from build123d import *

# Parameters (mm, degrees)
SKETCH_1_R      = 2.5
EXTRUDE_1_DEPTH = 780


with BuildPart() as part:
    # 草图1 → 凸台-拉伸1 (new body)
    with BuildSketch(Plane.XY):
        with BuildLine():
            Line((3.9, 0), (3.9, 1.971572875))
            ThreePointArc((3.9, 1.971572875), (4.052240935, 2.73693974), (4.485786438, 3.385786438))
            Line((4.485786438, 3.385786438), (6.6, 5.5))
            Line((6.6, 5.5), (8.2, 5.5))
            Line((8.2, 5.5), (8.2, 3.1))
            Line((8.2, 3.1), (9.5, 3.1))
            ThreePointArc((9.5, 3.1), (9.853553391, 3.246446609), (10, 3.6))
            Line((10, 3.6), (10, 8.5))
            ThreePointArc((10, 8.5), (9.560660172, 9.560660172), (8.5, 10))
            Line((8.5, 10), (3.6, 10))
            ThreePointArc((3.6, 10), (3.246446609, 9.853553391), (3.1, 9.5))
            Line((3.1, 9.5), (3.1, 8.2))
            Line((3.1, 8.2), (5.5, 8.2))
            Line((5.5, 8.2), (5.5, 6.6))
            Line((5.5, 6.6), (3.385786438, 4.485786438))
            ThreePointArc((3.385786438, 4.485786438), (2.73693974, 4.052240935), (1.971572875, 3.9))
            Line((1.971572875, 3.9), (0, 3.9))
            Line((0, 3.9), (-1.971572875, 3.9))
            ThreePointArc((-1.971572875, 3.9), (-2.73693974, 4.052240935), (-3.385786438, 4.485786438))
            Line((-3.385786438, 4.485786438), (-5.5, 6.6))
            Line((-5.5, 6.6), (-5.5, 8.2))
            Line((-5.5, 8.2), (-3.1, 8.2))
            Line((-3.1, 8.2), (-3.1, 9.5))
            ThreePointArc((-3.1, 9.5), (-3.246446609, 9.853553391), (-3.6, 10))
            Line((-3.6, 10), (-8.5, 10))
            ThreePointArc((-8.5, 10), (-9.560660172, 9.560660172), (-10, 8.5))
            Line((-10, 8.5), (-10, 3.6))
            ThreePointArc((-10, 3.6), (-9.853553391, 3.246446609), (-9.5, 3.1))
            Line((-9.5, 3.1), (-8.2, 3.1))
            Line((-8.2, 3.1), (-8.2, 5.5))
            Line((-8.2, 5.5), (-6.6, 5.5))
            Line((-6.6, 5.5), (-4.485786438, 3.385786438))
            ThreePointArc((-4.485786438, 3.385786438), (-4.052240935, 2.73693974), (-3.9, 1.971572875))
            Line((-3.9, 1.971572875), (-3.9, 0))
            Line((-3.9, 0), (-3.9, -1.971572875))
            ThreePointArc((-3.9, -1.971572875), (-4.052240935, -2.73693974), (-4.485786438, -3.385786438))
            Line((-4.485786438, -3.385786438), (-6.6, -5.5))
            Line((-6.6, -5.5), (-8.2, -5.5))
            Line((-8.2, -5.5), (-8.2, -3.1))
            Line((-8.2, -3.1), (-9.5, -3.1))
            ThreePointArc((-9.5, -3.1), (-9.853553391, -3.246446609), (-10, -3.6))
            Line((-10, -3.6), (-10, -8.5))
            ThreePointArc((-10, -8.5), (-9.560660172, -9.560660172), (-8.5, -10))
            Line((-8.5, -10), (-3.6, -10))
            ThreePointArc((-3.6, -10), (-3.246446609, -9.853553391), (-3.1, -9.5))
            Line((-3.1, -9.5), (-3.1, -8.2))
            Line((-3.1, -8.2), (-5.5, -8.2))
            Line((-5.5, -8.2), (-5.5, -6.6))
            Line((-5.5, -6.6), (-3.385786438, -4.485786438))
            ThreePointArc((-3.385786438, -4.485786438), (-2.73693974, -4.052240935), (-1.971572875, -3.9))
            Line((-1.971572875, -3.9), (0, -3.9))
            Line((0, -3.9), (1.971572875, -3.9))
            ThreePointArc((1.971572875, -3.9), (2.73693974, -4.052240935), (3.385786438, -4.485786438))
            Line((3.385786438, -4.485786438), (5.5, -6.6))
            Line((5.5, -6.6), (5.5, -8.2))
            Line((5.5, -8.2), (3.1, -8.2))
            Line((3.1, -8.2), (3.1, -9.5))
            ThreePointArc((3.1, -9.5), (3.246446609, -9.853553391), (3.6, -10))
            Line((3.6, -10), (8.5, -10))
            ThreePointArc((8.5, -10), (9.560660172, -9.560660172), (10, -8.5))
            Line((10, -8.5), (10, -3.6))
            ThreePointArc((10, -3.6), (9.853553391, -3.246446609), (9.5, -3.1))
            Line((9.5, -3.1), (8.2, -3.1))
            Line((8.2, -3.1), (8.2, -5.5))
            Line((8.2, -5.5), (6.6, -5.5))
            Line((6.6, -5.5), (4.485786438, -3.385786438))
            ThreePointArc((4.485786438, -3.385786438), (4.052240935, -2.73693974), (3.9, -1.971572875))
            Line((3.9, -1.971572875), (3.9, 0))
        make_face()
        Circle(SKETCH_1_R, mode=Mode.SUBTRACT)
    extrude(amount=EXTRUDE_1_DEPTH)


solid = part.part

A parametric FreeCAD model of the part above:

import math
import FreeCAD as App
import Part
import Sketcher

V = App.Vector
Q = App.Units.Quantity

doc = App.newDocument("Part")
body = doc.addObject("PartDesign::Body", "Body")

# Sketch on XY plane
sketch1 = body.newObject("Sketcher::SketchObject", "Sketch")
sketch1.AttachmentSupport = (doc.getObject("XY_Plane"), [""])
sketch1.MapMode = "FlatFace"
sketch1.addGeometry(Part.ArcOfCircle(Part.Circle(V(5.9, 1.97, 0), V(0, 0, 1), 2), math.radians(135), math.radians(180)), False)
sketch1.addGeometry(Part.LineSegment(V(4.49, 3.39, 0), V(6.6, 5.5, 0)), False)
sketch1.addGeometry(Part.LineSegment(V(6.6, 5.5, 0), V(8.2, 5.5, 0)), False)
sketch1.addGeometry(Part.LineSegment(V(8.2, 5.5, 0), V(8.2, 3.1, 0)), False)
sketch1.addGeometry(Part.LineSegment(V(8.2, 3.1, 0), V(9.5, 3.1, 0)), False)
sketch1.addGeometry(Part.ArcOfCircle(Part.Circle(V(9.5, 3.6, 0), V(0, 0, 1), 0.5), math.radians(-90), math.radians(0)), False)
sketch1.addGeometry(Part.LineSegment(V(10, 3.6, 0), V(10, 8.5, 0)), False)
sketch1.addGeometry(Part.ArcOfCircle(Part.Circle(V(8.5, 8.5, 0), V(0, 0, 1), 1.5), math.radians(0), math.radians(90)), False)
sketch1.addGeometry(Part.LineSegment(V(8.5, 10, 0), V(3.6, 10, 0)), False)
sketch1.addGeometry(Part.ArcOfCircle(Part.Circle(V(3.6, 9.5, 0), V(0, 0, 1), 0.5), math.radians(90), math.radians(180)), False)
sketch1.addGeometry(Part.LineSegment(V(3.1, 9.5, 0), V(3.1, 8.2, 0)), False)
sketch1.addGeometry(Part.LineSegment(V(3.1, 8.2, 0), V(5.5, 8.2, 0)), False)
sketch1.addGeometry(Part.LineSegment(V(5.5, 8.2, 0), V(5.5, 6.6, 0)), False)
sketch1.addGeometry(Part.LineSegment(V(5.5, 6.6, 0), V(3.39, 4.49, 0)), False)
sketch1.addGeometry(Part.ArcOfCircle(Part.Circle(V(1.97, 5.9, 0), V(0, 0, 1), 2), math.radians(-90), math.radians(-45)), False)
sketch1.addGeometry(Part.LineSegment(V(1.97, 3.9, 0), V(-1.97, 3.9, 0)), False)
sketch1.addGeometry(Part.ArcOfCircle(Part.Circle(V(-1.97, 5.9, 0), V(0, 0, 1), 2), math.radians(-135), math.radians(-90)), False)
sketch1.addGeometry(Part.LineSegment(V(-3.39, 4.49, 0), V(-5.5, 6.6, 0)), False)
sketch1.addGeometry(Part.LineSegment(V(-5.5, 6.6, 0), V(-5.5, 8.2, 0)), False)
sketch1.addGeometry(Part.LineSegment(V(-5.5, 8.2, 0), V(-3.1, 8.2, 0)), False)
sketch1.addGeometry(Part.LineSegment(V(-3.1, 8.2, 0), V(-3.1, 9.5, 0)), False)
sketch1.addGeometry(Part.ArcOfCircle(Part.Circle(V(-3.6, 9.5, 0), V(0, 0, 1), 0.5), math.radians(0), math.radians(90)), False)
sketch1.addGeometry(Part.LineSegment(V(-3.6, 10, 0), V(-8.5, 10, 0)), False)
sketch1.addGeometry(Part.ArcOfCircle(Part.Circle(V(-8.5, 8.5, 0), V(0, 0, 1), 1.5), math.radians(90), math.radians(180)), False)
sketch1.addGeometry(Part.LineSegment(V(-10, 8.5, 0), V(-10, 3.6, 0)), False)
sketch1.addGeometry(Part.ArcOfCircle(Part.Circle(V(-9.5, 3.6, 0), V(0, 0, 1), 0.5), math.radians(180), math.radians(270)), False)
sketch1.addGeometry(Part.LineSegment(V(-9.5, 3.1, 0), V(-8.2, 3.1, 0)), False)
sketch1.addGeometry(Part.LineSegment(V(-8.2, 3.1, 0), V(-8.2, 5.5, 0)), False)
sketch1.addGeometry(Part.LineSegment(V(-8.2, 5.5, 0), V(-6.6, 5.5, 0)), False)
sketch1.addGeometry(Part.LineSegment(V(-6.6, 5.5, 0), V(-4.49, 3.39, 0)), False)
sketch1.addGeometry(Part.ArcOfCircle(Part.Circle(V(-5.9, 1.97, 0), V(0, 0, 1), 2), math.radians(0), math.radians(45)), False)
sketch1.addGeometry(Part.LineSegment(V(-3.9, 1.97, 0), V(-3.9, -1.97, 0)), False)
sketch1.addGeometry(Part.ArcOfCircle(Part.Circle(V(-5.9, -1.97, 0), V(0, 0, 1), 2), math.radians(-45), math.radians(0)), False)
sketch1.addGeometry(Part.LineSegment(V(-4.49, -3.39, 0), V(-6.6, -5.5, 0)), False)
sketch1.addGeometry(Part.LineSegment(V(-6.6, -5.5, 0), V(-8.2, -5.5, 0)), False)
sketch1.addGeometry(Part.LineSegment(V(-8.2, -5.5, 0), V(-8.2, -3.1, 0)), False)
sketch1.addGeometry(Part.LineSegment(V(-8.2, -3.1, 0), V(-9.5, -3.1, 0)), False)
sketch1.addGeometry(Part.ArcOfCircle(Part.Circle(V(-9.5, -3.6, 0), V(0, 0, 1), 0.5), math.radians(90), math.radians(180)), False)
sketch1.addGeometry(Part.LineSegment(V(-10, -3.6, 0), V(-10, -8.5, 0)), False)
sketch1.addGeometry(Part.ArcOfCircle(Part.Circle(V(-8.5, -8.5, 0), V(0, 0, 1), 1.5), math.radians(180), math.radians(270)), False)
sketch1.addGeometry(Part.LineSegment(V(-8.5, -10, 0), V(-3.6, -10, 0)), False)
sketch1.addGeometry(Part.ArcOfCircle(Part.Circle(V(-3.6, -9.5, 0), V(0, 0, 1), 0.5), math.radians(-90), math.radians(0)), False)
sketch1.addGeometry(Part.LineSegment(V(-3.1, -9.5, 0), V(-3.1, -8.2, 0)), False)
sketch1.addGeometry(Part.LineSegment(V(-3.1, -8.2, 0), V(-5.5, -8.2, 0)), False)
sketch1.addGeometry(Part.LineSegment(V(-5.5, -8.2, 0), V(-5.5, -6.6, 0)), False)
sketch1.addGeometry(Part.LineSegment(V(-5.5, -6.6, 0), V(-3.39, -4.49, 0)), False)
sketch1.addGeometry(Part.ArcOfCircle(Part.Circle(V(-1.97, -5.9, 0), V(0, 0, 1), 2), math.radians(90), math.radians(135)), False)
sketch1.addGeometry(Part.LineSegment(V(-1.97, -3.9, 0), V(1.97, -3.9, 0)), False)
sketch1.addGeometry(Part.ArcOfCircle(Part.Circle(V(1.97, -5.9, 0), V(0, 0, 1), 2), math.radians(45), math.radians(90)), False)
sketch1.addGeometry(Part.LineSegment(V(3.39, -4.49, 0), V(5.5, -6.6, 0)), False)
sketch1.addGeometry(Part.LineSegment(V(5.5, -6.6, 0), V(5.5, -8.2, 0)), False)
sketch1.addGeometry(Part.LineSegment(V(5.5, -8.2, 0), V(3.1, -8.2, 0)), False)
sketch1.addGeometry(Part.LineSegment(V(3.1, -8.2, 0), V(3.1, -9.5, 0)), False)
sketch1.addGeometry(Part.ArcOfCircle(Part.Circle(V(3.6, -9.5, 0), V(0, 0, 1), 0.5), math.radians(180), math.radians(270)), False)
sketch1.addGeometry(Part.LineSegment(V(3.6, -10, 0), V(8.5, -10, 0)), False)
sketch1.addGeometry(Part.ArcOfCircle(Part.Circle(V(8.5, -8.5, 0), V(0, 0, 1), 1.5), math.radians(-90), math.radians(0)), False)
sketch1.addGeometry(Part.LineSegment(V(10, -8.5, 0), V(10, -3.6, 0)), False)
sketch1.addGeometry(Part.ArcOfCircle(Part.Circle(V(9.5, -3.6, 0), V(0, 0, 1), 0.5), math.radians(0), math.radians(90)), False)
sketch1.addGeometry(Part.LineSegment(V(9.5, -3.1, 0), V(8.2, -3.1, 0)), False)
sketch1.addGeometry(Part.LineSegment(V(8.2, -3.1, 0), V(8.2, -5.5, 0)), False)
sketch1.addGeometry(Part.LineSegment(V(8.2, -5.5, 0), V(6.6, -5.5, 0)), False)
sketch1.addGeometry(Part.LineSegment(V(6.6, -5.5, 0), V(4.49, -3.39, 0)), False)
sketch1.addGeometry(Part.ArcOfCircle(Part.Circle(V(5.9, -1.97, 0), V(0, 0, 1), 2), math.radians(180), math.radians(225)), False)
sketch1.addGeometry(Part.LineSegment(V(3.9, -1.97, 0), V(3.9, 1.97, 0)), False)
sketch1.addGeometry(Part.Circle(V(0, 0, 0), V(0, 0, 1), 2.5), False)
sketch1.addConstraint(Sketcher.Constraint("Tangent", 0, 1, 1, 1))
sketch1.addConstraint(Sketcher.Constraint("Coincident", 1, 2, 2, 1))
sketch1.addConstraint(Sketcher.Constraint("Coincident", 2, 2, 3, 1))
sketch1.addConstraint(Sketcher.Constraint("Coincident", 3, 2, 4, 1))
sketch1.addConstraint(Sketcher.Constraint("Tangent", 4, 2, 5, 1))
sketch1.addConstraint(Sketcher.Constraint("Tangent", 5, 2, 6, 1))
sketch1.addConstraint(Sketcher.Constraint("Tangent", 6, 2, 7, 1))
sketch1.addConstraint(Sketcher.Constraint("Tangent", 7, 2, 8, 1))
sketch1.addConstraint(Sketcher.Constraint("Tangent", 8, 2, 9, 1))
sketch1.addConstraint(Sketcher.Constraint("Tangent", 9, 2, 10, 1))
sketch1.addConstraint(Sketcher.Constraint("Coincident", 10, 2, 11, 1))
sketch1.addConstraint(Sketcher.Constraint("Coincident", 11, 2, 12, 1))
sketch1.addConstraint(Sketcher.Constraint("Coincident", 12, 2, 13, 1))
sketch1.addConstraint(Sketcher.Constraint("Tangent", 13, 2, 14, 2))
sketch1.addConstraint(Sketcher.Constraint("Tangent", 14, 1, 15, 1))
sketch1.addConstraint(Sketcher.Constraint("Tangent", 15, 2, 16, 2))
sketch1.addConstraint(Sketcher.Constraint("Tangent", 16, 1, 17, 1))
sketch1.addConstraint(Sketcher.Constraint("Coincident", 17, 2, 18, 1))
sketch1.addConstraint(Sketcher.Constraint("Coincident", 18, 2, 19, 1))
sketch1.addConstraint(Sketcher.Constraint("Coincident", 19, 2, 20, 1))
sketch1.addConstraint(Sketcher.Constraint("Tangent", 20, 2, 21, 1))
sketch1.addConstraint(Sketcher.Constraint("Tangent", 21, 2, 22, 1))
sketch1.addConstraint(Sketcher.Constraint("Tangent", 22, 2, 23, 1))
sketch1.addConstraint(Sketcher.Constraint("Tangent", 23, 2, 24, 1))
sketch1.addConstraint(Sketcher.Constraint("Tangent", 24, 2, 25, 1))
sketch1.addConstraint(Sketcher.Constraint("Tangent", 25, 2, 26, 1))
sketch1.addConstraint(Sketcher.Constraint("Coincident", 26, 2, 27, 1))
sketch1.addConstraint(Sketcher.Constraint("Coincident", 27, 2, 28, 1))
sketch1.addConstraint(Sketcher.Constraint("Coincident", 28, 2, 29, 1))
sketch1.addConstraint(Sketcher.Constraint("Tangent", 29, 2, 30, 2))
sketch1.addConstraint(Sketcher.Constraint("Tangent", 30, 1, 31, 1))
sketch1.addConstraint(Sketcher.Constraint("Tangent", 31, 2, 32, 2))
sketch1.addConstraint(Sketcher.Constraint("Tangent", 32, 1, 33, 1))
sketch1.addConstraint(Sketcher.Constraint("Coincident", 33, 2, 34, 1))
sketch1.addConstraint(Sketcher.Constraint("Coincident", 34, 2, 35, 1))
sketch1.addConstraint(Sketcher.Constraint("Coincident", 35, 2, 36, 1))
sketch1.addConstraint(Sketcher.Constraint("Tangent", 36, 2, 37, 1))
sketch1.addConstraint(Sketcher.Constraint("Tangent", 37, 2, 38, 1))
sketch1.addConstraint(Sketcher.Constraint("Tangent", 38, 2, 39, 1))
sketch1.addConstraint(Sketcher.Constraint("Tangent", 39, 2, 40, 1))
sketch1.addConstraint(Sketcher.Constraint("Tangent", 40, 2, 41, 1))
sketch1.addConstraint(Sketcher.Constraint("Tangent", 41, 2, 42, 1))
sketch1.addConstraint(Sketcher.Constraint("Coincident", 42, 2, 43, 1))
sketch1.addConstraint(Sketcher.Constraint("Coincident", 43, 2, 44, 1))
sketch1.addConstraint(Sketcher.Constraint("Coincident", 44, 2, 45, 1))
sketch1.addConstraint(Sketcher.Constraint("Tangent", 45, 2, 46, 2))
sketch1.addConstraint(Sketcher.Constraint("Tangent", 46, 1, 47, 1))
sketch1.addConstraint(Sketcher.Constraint("Tangent", 47, 2, 48, 2))
sketch1.addConstraint(Sketcher.Constraint("Tangent", 48, 1, 49, 1))
sketch1.addConstraint(Sketcher.Constraint("Coincident", 49, 2, 50, 1))
sketch1.addConstraint(Sketcher.Constraint("Coincident", 50, 2, 51, 1))
sketch1.addConstraint(Sketcher.Constraint("Coincident", 51, 2, 52, 1))
sketch1.addConstraint(Sketcher.Constraint("Tangent", 52, 2, 53, 1))
sketch1.addConstraint(Sketcher.Constraint("Tangent", 53, 2, 54, 1))
sketch1.addConstraint(Sketcher.Constraint("Tangent", 54, 2, 55, 1))
sketch1.addConstraint(Sketcher.Constraint("Tangent", 55, 2, 56, 1))
sketch1.addConstraint(Sketcher.Constraint("Tangent", 56, 2, 57, 1))
sketch1.addConstraint(Sketcher.Constraint("Tangent", 57, 2, 58, 1))
sketch1.addConstraint(Sketcher.Constraint("Coincident", 58, 2, 59, 1))
sketch1.addConstraint(Sketcher.Constraint("Coincident", 59, 2, 60, 1))
sketch1.addConstraint(Sketcher.Constraint("Coincident", 60, 2, 61, 1))
sketch1.addConstraint(Sketcher.Constraint("Tangent", 61, 2, 62, 2))
sketch1.addConstraint(Sketcher.Constraint("Tangent", 62, 1, 63, 1))
sketch1.addConstraint(Sketcher.Constraint("Tangent", 63, 2, 0, 2))
sketch1.addConstraint(Sketcher.Constraint("Horizontal", 2))
sketch1.addConstraint(Sketcher.Constraint("Vertical", 3))
sketch1.addConstraint(Sketcher.Constraint("Horizontal", 4))
sketch1.addConstraint(Sketcher.Constraint("Vertical", 6))
sketch1.addConstraint(Sketcher.Constraint("Horizontal", 8))
sketch1.addConstraint(Sketcher.Constraint("Vertical", 10))
sketch1.addConstraint(Sketcher.Constraint("Horizontal", 11))
sketch1.addConstraint(Sketcher.Constraint("Vertical", 12))
sketch1.addConstraint(Sketcher.Constraint("Horizontal", 15))
sketch1.addConstraint(Sketcher.Constraint("Vertical", 18))
sketch1.addConstraint(Sketcher.Constraint("Horizontal", 19))
sketch1.addConstraint(Sketcher.Constraint("Vertical", 20))
sketch1.addConstraint(Sketcher.Constraint("Horizontal", 22))
sketch1.addConstraint(Sketcher.Constraint("Vertical", 24))
sketch1.addConstraint(Sketcher.Constraint("Horizontal", 26))
sketch1.addConstraint(Sketcher.Constraint("Vertical", 27))
sketch1.addConstraint(Sketcher.Constraint("Horizontal", 28))
sketch1.addConstraint(Sketcher.Constraint("Vertical", 31))
sketch1.addConstraint(Sketcher.Constraint("Horizontal", 34))
sketch1.addConstraint(Sketcher.Constraint("Vertical", 35))
sketch1.addConstraint(Sketcher.Constraint("Horizontal", 36))
sketch1.addConstraint(Sketcher.Constraint("Vertical", 38))
sketch1.addConstraint(Sketcher.Constraint("Horizontal", 40))
sketch1.addConstraint(Sketcher.Constraint("Vertical", 42))
sketch1.addConstraint(Sketcher.Constraint("Horizontal", 43))
sketch1.addConstraint(Sketcher.Constraint("Vertical", 44))
sketch1.addConstraint(Sketcher.Constraint("Horizontal", 47))
sketch1.addConstraint(Sketcher.Constraint("Vertical", 50))
sketch1.addConstraint(Sketcher.Constraint("Horizontal", 51))
sketch1.addConstraint(Sketcher.Constraint("Vertical", 52))
sketch1.addConstraint(Sketcher.Constraint("Horizontal", 54))
sketch1.addConstraint(Sketcher.Constraint("Vertical", 56))
sketch1.addConstraint(Sketcher.Constraint("Horizontal", 58))
sketch1.addConstraint(Sketcher.Constraint("Vertical", 59))
sketch1.addConstraint(Sketcher.Constraint("Horizontal", 60))
sketch1.addConstraint(Sketcher.Constraint("Vertical", 63))
sketch1.addConstraint(Sketcher.Constraint("Coincident", 64, 3, -1, 1))
sketch1.addConstraint(Sketcher.Constraint("Equal", 5, 9))
sketch1.addConstraint(Sketcher.Constraint("Equal", 0, 14))
sketch1.addConstraint(Sketcher.Constraint("Equal", 14, 16))
sketch1.addConstraint(Sketcher.Constraint("Equal", 9, 21))
sketch1.addConstraint(Sketcher.Constraint("Equal", 7, 23))
sketch1.addConstraint(Sketcher.Constraint("Equal", 21, 25))
sketch1.addConstraint(Sketcher.Constraint("Equal", 16, 30))
sketch1.addConstraint(Sketcher.Constraint("Equal", 30, 32))
sketch1.addConstraint(Sketcher.Constraint("Equal", 25, 37))
sketch1.addConstraint(Sketcher.Constraint("Equal", 23, 39))
sketch1.addConstraint(Sketcher.Constraint("Equal", 37, 41))
sketch1.addConstraint(Sketcher.Constraint("Equal", 32, 46))
sketch1.addConstraint(Sketcher.Constraint("Equal", 46, 48))
sketch1.addConstraint(Sketcher.Constraint("Equal", 41, 53))
sketch1.addConstraint(Sketcher.Constraint("Equal", 39, 55))
sketch1.addConstraint(Sketcher.Constraint("Equal", 53, 57))
sketch1.addConstraint(Sketcher.Constraint("Equal", 48, 62))
sketch1.addConstraint(Sketcher.Constraint("Symmetric", 0, 3, 32, 3, -1, 1))
sketch1.addConstraint(Sketcher.Constraint("Symmetric", 5, 3, 37, 3, -1, 1))
sketch1.addConstraint(Sketcher.Constraint("Symmetric", 9, 3, 41, 3, -1, 1))
sketch1.addConstraint(Sketcher.Constraint("Symmetric", 14, 3, 46, 3, -1, 1))
sketch1.addConstraint(Sketcher.Constraint("Symmetric", 21, 3, 53, 3, -1, 1))
sketch1.addConstraint(Sketcher.Constraint("Symmetric", 25, 3, 57, 3, -1, 1))
sketch1.addConstraint(Sketcher.Constraint("Symmetric", 1, 2, 33, 2, -1, 1))
sketch1.addConstraint(Sketcher.Constraint("Symmetric", 11, 2, 43, 2, -1, 1))
sketch1.addConstraint(Sketcher.Constraint("Symmetric", 16, 1, 48, 1, -1, 1))
sketch1.addConstraint(Sketcher.Constraint("Symmetric", 18, 2, 50, 2, -1, 1))
sketch1.addConstraint(Sketcher.Constraint("Symmetric", 27, 2, 59, 2, -1, 1))
sketch1.addConstraint(Sketcher.Constraint("Symmetric", 29, 2, 61, 2, -1, 1))
sketch1.addConstraint(Sketcher.Constraint("Symmetric", 9, 3, 21, 3, -2))
sketch1.addConstraint(Sketcher.Constraint("Symmetric", 5, 3, 25, 3, -2))
sketch1.addConstraint(Sketcher.Constraint("Symmetric", 13, 2, 16, 1, -2))
sketch1.addConstraint(Sketcher.Constraint("Symmetric", 11, 2, 18, 2, -2))
sketch1.addConstraint(Sketcher.Constraint("Symmetric", 2, 2, 27, 2, -2))
sketch1.addConstraint(Sketcher.Constraint("Symmetric", 0, 1, 29, 2, -2))
sketch1.addConstraint(Sketcher.Constraint("Parallel", 1, 13))
sketch1.addConstraint(Sketcher.Constraint("Perpendicular", 13, 17))
sketch1.addConstraint(Sketcher.Constraint("Parallel", 33, 45))
sketch1.addConstraint(Sketcher.Constraint("Vertical", 27, 2, 34, 2))
sketch1.addConstraint(Sketcher.Constraint("Equal", 51, 3))
sketch1.addConstraint(Sketcher.Constraint("Equal", 54, 6))
sketch1.addConstraint(Sketcher.Constraint("Equal", 58, 10))
sketch1.addConstraint(Sketcher.Constraint("Equal", 60, 12))
sketch1.addConstraint(Sketcher.Constraint("Equal", 47, 31))
sketch1.addConstraint(Sketcher.Constraint("Equal", 1, 13))
sketch1.addConstraint(Sketcher.Constraint("Diameter", 64, Q("5 mm")))
sketch1.addConstraint(Sketcher.Constraint("Radius", 0, Q("2 mm")))
sketch1.addConstraint(Sketcher.Constraint("Radius", 5, Q("0.5 mm")))
sketch1.addConstraint(Sketcher.Constraint("Radius", 7, Q("1.5 mm")))
sketch1.addConstraint(Sketcher.Constraint("DistanceX", 2, 1, 2, 2, Q("1.6 mm")))
sketch1.addConstraint(Sketcher.Constraint("DistanceX", 4, 1, 4, 2, Q("1.3 mm")))
sketch1.addConstraint(Sketcher.Constraint("DistanceX", 8, 2, 8, 1, Q("4.9 mm")))
sketch1.addConstraint(Sketcher.Constraint("DistanceX", 11, 1, 11, 2, Q("2.4 mm")))
sketch1.addConstraint(Sketcher.Constraint("DistanceX", -1, 1, 5, 2, Q("10 mm")))
sketch1.addConstraint(Sketcher.Constraint("DistanceX", -1, 1, 0, 3, Q("5.9 mm")))
pad1 = body.newObject("PartDesign::Pad", "Pad")
pad1.Profile = sketch1
pad1.Length = 780

doc.recompute()
